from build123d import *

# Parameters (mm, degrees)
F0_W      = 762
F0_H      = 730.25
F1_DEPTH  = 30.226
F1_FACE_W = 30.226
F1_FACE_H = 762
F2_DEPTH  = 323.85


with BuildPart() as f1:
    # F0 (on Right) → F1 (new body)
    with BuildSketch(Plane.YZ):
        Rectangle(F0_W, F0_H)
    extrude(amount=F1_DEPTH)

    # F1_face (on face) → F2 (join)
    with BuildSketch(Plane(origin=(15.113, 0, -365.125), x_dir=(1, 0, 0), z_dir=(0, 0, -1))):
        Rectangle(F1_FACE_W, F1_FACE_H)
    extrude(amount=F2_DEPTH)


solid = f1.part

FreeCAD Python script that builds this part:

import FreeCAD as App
import Part
import Sketcher
from FreeCAD import Vector
Q = App.Units.Quantity

doc = App.newDocument("Part")
params = doc.addObject("Spreadsheet::Sheet", "Params")
for row, (alias, value) in enumerate([
    ("sketch1_width", "30 in"),
    ("sketch1_height", "28.75 in"),
    ("pad1_length", "1.19 in"),
    ("sketch2_height", "30 in"),
    ("sketch2_width", "1.19 in"),
    ("pad2_length", "12.75 in"),
], start=1):
    params.set(f"A{row}", alias)
    params.set(f"B{row}", "=" + value)
    params.setAlias(f"B{row}", alias)

body = doc.addObject("PartDesign::Body", "Body")

# Sketch on YZ plane
sketch1 = doc.addObject("Sketcher::SketchObject", "Sketch")
body.addObject(sketch1)
sketch1.AttachmentSupport = (doc.YZ_Plane, [""])
sketch1.MapMode = "FlatFace"
sketch1.addGeometry(Part.LineSegment(Vector(-381, 365, 0), Vector(-381, -365, 0)), False)
sketch1.addGeometry(Part.LineSegment(Vector(-381, -365, 0), Vector(381, -365, 0)), False)
sketch1.addGeometry(Part.LineSegment(Vector(381, -365, 0), Vector(381, 365, 0)), False)
sketch1.addGeometry(Part.LineSegment(Vector(381, 365, 0), Vector(-381, 365, 0)), False)
sketch1.addConstraint(Sketcher.Constraint("Coincident", 0, 2, 1, 1))
sketch1.addConstraint(Sketcher.Constraint("Coincident", 1, 2, 2, 1))
sketch1.addConstraint(Sketcher.Constraint("Coincident", 2, 2, 3, 1))
sketch1.addConstraint(Sketcher.Constraint("Coincident", 3, 2, 0, 1))
sketch1.addConstraint(Sketcher.Constraint("Vertical", 0))
sketch1.addConstraint(Sketcher.Constraint("Horizontal", 1))
sketch1.addConstraint(Sketcher.Constraint("Vertical", 2))
sketch1.addConstraint(Sketcher.Constraint("Horizontal", 3))
sketch1.addConstraint(Sketcher.Constraint("Symmetric", 0, 2, 2, 2, -1, 1))
sketch1.addConstraint(Sketcher.Constraint("DistanceX", 1, 1, 1, 2, Q("30 in")))
sketch1.addConstraint(Sketcher.Constraint("DistanceY", 0, 2, 0, 1, Q("28.75 in")))
sketch1.setExpression("Constraints[9]", "Params.sketch1_width")
sketch1.setExpression("Constraints[10]", "Params.sketch1_height")
pad1 = doc.addObject("PartDesign::Pad", "Pad")
body.addObject(pad1)
pad1.Profile = sketch1
pad1.setExpression("Length", "Params.pad1_length")

# Sketch on XY plane
sketch2 = doc.addObject("Sketcher::SketchObject", "Sketch001")
body.addObject(sketch2)
sketch2.AttachmentSupport = (doc.XY_Plane, [""])
sketch2.MapMode = "FlatFace"
sketch2.AttachmentOffset = App.Placement(Vector(0, 0, -14.375 * 25.4), App.Rotation())
sketch2.addGeometry(Part.LineSegment(Vector(0, -381, 0), Vector(0, 381, 0)), False)
sketch2.addGeometry(Part.LineSegment(Vector(0, 381, 0), Vector(30, 381, 0)), False)
sketch2.addGeometry(Part.LineSegment(Vector(30, 381, 0), Vector(30, -381, 0)), False)
sketch2.addGeometry(Part.LineSegment(Vector(30, -381, 0), Vector(0, -381, 0)), False)
sketch2.addConstraint(Sketcher.Constraint("Coincident", 0, 2, 1, 1))
sketch2.addConstraint(Sketcher.Constraint("Coincident", 1, 2, 2, 1))
sketch2.addConstraint(Sketcher.Constraint("Coincident", 2, 2, 3, 1))
sketch2.addConstraint(Sketcher.Constraint("Coincident", 3, 2, 0, 1))
sketch2.addConstraint(Sketcher.Constraint("Vertical", 0))
sketch2.addConstraint(Sketcher.Constraint("Horizontal", 1))
sketch2.addConstraint(Sketcher.Constraint("Vertical", 2))
sketch2.addConstraint(Sketcher.Constraint("Horizontal", 3))
sketch2.addConstraint(Sketcher.Constraint("Symmetric", 0, 2, 3, 2, -1, 1))
sketch2.addConstraint(Sketcher.Constraint("DistanceY", 0, 1, 0, 2, Q("30 in")))
sketch2.addConstraint(Sketcher.Constraint("DistanceX", 1, 1, 1, 2, Q("1.19 in")))
sketch2.setExpression("Constraints[9]", "Params.sketch2_height")
sketch2.setExpression("Constraints[10]", "Params.sketch2_width")
pad2 = doc.addObject("PartDesign::Pad", "Pad001")
body.addObject(pad2)
pad2.Profile = sketch2
pad2.setExpression("Length", "Params.pad2_length")
pad2.Reversed = True

doc.recompute()
